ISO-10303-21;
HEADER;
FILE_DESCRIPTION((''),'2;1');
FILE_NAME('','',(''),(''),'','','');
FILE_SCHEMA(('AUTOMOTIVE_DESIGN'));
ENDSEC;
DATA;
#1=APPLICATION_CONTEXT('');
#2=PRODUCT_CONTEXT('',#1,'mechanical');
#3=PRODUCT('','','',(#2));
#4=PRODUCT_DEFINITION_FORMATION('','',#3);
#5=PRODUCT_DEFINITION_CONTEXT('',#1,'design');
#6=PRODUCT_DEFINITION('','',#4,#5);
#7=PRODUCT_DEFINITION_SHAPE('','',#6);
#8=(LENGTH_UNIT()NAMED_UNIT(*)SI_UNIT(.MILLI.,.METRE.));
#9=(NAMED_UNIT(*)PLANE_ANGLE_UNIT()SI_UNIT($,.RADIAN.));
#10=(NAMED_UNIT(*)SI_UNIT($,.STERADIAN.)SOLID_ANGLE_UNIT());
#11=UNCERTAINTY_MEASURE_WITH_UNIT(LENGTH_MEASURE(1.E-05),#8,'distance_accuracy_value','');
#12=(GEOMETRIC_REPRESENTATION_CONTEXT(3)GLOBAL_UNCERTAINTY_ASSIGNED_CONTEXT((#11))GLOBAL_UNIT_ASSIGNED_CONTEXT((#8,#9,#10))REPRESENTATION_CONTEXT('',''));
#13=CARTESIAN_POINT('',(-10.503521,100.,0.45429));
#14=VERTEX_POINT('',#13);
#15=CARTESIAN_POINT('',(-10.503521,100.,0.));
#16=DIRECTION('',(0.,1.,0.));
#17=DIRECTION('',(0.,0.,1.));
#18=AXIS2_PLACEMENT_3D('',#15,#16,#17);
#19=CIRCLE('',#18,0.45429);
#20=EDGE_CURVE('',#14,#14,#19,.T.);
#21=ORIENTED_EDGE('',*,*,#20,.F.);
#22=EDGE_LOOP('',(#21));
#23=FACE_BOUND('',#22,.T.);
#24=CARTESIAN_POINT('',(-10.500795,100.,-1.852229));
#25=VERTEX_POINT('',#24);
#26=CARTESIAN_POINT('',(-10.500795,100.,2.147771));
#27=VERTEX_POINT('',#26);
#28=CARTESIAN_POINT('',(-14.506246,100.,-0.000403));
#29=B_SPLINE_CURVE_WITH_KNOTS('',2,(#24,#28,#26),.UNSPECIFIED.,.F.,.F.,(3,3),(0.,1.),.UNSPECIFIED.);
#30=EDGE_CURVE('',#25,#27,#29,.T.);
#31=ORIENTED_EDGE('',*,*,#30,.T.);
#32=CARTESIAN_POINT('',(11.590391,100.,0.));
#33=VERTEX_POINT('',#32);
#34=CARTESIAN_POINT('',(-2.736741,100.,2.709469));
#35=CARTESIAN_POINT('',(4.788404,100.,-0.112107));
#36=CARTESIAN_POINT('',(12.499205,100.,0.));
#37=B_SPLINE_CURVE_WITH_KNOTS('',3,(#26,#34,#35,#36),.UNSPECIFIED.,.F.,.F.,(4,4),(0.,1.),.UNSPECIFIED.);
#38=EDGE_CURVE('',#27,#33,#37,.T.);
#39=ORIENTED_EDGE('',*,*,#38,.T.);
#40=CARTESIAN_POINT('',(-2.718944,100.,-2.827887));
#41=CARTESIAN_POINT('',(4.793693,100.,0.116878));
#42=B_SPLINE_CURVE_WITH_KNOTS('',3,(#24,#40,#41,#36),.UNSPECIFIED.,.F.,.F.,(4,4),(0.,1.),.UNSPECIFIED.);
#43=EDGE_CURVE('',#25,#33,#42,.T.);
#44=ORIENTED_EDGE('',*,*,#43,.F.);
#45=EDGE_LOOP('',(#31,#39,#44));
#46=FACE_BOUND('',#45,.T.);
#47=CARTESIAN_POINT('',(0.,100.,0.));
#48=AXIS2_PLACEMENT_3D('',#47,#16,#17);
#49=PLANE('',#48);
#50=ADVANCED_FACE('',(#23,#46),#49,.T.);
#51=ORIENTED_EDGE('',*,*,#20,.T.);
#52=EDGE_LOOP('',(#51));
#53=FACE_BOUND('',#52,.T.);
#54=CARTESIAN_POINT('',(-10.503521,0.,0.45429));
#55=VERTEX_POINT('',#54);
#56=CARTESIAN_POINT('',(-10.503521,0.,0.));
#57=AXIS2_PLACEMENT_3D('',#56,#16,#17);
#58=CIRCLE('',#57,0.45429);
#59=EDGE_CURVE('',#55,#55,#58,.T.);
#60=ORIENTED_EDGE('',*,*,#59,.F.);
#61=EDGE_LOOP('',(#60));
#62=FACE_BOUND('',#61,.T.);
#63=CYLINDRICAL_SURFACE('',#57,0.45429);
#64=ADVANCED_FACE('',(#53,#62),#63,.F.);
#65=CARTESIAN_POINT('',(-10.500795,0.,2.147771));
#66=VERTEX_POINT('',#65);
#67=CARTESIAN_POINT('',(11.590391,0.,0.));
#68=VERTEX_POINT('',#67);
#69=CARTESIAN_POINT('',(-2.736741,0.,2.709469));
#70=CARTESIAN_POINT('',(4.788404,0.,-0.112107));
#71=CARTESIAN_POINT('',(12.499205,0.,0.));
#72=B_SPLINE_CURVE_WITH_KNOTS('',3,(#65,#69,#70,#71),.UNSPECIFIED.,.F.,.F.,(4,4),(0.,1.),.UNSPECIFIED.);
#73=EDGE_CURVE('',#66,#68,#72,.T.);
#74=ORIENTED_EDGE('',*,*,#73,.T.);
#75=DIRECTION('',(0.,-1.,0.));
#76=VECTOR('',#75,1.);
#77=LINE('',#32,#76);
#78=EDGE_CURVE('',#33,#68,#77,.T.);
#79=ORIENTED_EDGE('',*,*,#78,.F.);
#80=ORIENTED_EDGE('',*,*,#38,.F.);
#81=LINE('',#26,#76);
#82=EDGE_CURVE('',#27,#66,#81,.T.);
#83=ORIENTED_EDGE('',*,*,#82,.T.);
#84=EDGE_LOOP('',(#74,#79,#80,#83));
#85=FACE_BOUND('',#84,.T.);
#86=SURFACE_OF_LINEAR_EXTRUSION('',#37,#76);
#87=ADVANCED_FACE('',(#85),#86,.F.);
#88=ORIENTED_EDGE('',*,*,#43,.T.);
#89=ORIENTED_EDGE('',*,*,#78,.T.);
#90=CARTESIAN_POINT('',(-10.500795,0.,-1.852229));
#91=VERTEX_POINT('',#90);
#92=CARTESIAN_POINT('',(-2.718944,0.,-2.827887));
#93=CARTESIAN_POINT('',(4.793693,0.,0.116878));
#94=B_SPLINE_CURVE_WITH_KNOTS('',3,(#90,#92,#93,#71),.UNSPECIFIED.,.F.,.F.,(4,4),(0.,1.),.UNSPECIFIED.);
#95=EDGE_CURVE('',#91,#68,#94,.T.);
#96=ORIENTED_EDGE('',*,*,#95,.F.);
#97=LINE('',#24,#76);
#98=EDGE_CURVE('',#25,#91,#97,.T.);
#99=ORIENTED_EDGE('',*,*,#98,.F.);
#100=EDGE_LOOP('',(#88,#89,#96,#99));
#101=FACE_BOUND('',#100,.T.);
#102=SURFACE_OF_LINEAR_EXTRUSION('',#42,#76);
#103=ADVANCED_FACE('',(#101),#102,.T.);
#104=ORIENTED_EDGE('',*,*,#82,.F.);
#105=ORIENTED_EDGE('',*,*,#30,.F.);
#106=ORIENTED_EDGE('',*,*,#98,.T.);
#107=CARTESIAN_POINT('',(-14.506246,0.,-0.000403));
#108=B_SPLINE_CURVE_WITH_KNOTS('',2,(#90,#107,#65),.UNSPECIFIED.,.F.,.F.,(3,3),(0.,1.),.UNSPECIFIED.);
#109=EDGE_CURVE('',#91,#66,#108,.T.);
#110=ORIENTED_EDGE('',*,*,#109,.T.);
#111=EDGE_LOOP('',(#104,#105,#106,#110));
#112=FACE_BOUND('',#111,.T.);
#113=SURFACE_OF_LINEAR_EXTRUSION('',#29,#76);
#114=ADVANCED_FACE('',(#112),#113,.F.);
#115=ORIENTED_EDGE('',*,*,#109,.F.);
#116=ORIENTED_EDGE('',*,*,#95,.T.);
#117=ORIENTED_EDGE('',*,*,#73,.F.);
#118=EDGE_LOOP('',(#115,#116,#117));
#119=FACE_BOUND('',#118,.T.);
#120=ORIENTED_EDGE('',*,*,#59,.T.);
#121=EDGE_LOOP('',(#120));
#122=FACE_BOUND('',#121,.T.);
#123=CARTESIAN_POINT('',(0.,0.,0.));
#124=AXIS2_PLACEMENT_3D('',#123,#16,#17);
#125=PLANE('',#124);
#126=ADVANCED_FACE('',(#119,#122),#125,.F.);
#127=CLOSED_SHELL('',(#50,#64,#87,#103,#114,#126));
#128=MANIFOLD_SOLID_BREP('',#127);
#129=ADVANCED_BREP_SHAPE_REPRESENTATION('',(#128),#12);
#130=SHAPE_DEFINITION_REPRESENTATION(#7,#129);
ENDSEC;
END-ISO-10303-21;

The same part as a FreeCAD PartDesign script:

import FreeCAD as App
import Part
import Sketcher

V = App.Vector
Q = App.Units.Quantity

doc = App.newDocument("Part")
params = doc.addObject("Spreadsheet::Sheet", "Params")
for row, (alias, value) in enumerate([
    ("pad1_length", "100 mm"),
    ("pocket1_length", "100 mm"),
], start=1):
    params.set(f"A{row}", alias)
    params.set(f"B{row}", "=" + value)
    params.setAlias(f"B{row}", alias)

body = doc.addObject("PartDesign::Body", "Body")

# Sketch on XZ plane
sketch1 = doc.addObject("Sketcher::SketchObject", "Sketch")
body.addObject(sketch1)
sketch1.AttachmentSupport = (doc.XZ_Plane, [""])
sketch1.MapMode = "FlatFace"
sketch1.addGeometry([
    Part.BSplineCurve([V(-10.500795, -1.852229, 0), V(-3.025175, -2.789493, 0), V(4.202002, -0.108816, 0), V(11.590392, 0, 0)], [4, 4], [0, 0.960648021], False, 3, [1, 1, 1, 1], False),
    Part.BSplineCurve([V(-10.500795, -1.852229, 0), V(-14.506246, -0.000403, 0), V(-10.500795, 2.147771, 0)], [3, 3], [0, 1], False, 2, [1, 1, 1], False),
    Part.BSplineCurve([V(-10.500795, 2.147771, 0), V(-3.042052, 2.687381, 0), V(4.196203, 0.10457, 0), V(11.590392, 0, 0)], [4, 4], [0, 0.960676416], False, 3, [1, 1, 1, 1], False),
], False)
sketch1.addConstraint([
    Sketcher.Constraint("Block", 0),
    Sketcher.Constraint("Block", 1),
    Sketcher.Constraint("Block", 2),
])
pad1 = doc.addObject("PartDesign::Pad", "Pad")
body.addObject(pad1)
pad1.Profile = sketch1
pad1.setExpression("Length", "Params.pad1_length")
pad1.Reversed = True

# Sketch on XZ plane
sketch2 = doc.addObject("Sketcher::SketchObject", "Sketch001")
body.addObject(sketch2)
sketch2.AttachmentSupport = (doc.XZ_Plane, [""])
sketch2.MapMode = "FlatFace"
sketch2.AttachmentOffset = App.Placement(V(0, 0, -100), App.Rotation())
sketch2.addGeometry(Part.Circle(V(-10.5, 0, 0), V(0, 0, 1), 0.45), False)
sketch2.addConstraint([
    Sketcher.Constraint("PointOnObject", 0, 3, -1),
    Sketcher.Constraint("Diameter", 0, Q("0.908579 mm")),
    Sketcher.Constraint("DistanceX", 0, 3, -1, 1, Q("10.503521 mm")),
])
pocket1 = doc.addObject("PartDesign::Pocket", "Pocket")
body.addObject(pocket1)
pocket1.Profile = sketch2
pocket1.setExpression("Length", "Params.pocket1_length")
pocket1.Reversed = True

doc.recompute()
